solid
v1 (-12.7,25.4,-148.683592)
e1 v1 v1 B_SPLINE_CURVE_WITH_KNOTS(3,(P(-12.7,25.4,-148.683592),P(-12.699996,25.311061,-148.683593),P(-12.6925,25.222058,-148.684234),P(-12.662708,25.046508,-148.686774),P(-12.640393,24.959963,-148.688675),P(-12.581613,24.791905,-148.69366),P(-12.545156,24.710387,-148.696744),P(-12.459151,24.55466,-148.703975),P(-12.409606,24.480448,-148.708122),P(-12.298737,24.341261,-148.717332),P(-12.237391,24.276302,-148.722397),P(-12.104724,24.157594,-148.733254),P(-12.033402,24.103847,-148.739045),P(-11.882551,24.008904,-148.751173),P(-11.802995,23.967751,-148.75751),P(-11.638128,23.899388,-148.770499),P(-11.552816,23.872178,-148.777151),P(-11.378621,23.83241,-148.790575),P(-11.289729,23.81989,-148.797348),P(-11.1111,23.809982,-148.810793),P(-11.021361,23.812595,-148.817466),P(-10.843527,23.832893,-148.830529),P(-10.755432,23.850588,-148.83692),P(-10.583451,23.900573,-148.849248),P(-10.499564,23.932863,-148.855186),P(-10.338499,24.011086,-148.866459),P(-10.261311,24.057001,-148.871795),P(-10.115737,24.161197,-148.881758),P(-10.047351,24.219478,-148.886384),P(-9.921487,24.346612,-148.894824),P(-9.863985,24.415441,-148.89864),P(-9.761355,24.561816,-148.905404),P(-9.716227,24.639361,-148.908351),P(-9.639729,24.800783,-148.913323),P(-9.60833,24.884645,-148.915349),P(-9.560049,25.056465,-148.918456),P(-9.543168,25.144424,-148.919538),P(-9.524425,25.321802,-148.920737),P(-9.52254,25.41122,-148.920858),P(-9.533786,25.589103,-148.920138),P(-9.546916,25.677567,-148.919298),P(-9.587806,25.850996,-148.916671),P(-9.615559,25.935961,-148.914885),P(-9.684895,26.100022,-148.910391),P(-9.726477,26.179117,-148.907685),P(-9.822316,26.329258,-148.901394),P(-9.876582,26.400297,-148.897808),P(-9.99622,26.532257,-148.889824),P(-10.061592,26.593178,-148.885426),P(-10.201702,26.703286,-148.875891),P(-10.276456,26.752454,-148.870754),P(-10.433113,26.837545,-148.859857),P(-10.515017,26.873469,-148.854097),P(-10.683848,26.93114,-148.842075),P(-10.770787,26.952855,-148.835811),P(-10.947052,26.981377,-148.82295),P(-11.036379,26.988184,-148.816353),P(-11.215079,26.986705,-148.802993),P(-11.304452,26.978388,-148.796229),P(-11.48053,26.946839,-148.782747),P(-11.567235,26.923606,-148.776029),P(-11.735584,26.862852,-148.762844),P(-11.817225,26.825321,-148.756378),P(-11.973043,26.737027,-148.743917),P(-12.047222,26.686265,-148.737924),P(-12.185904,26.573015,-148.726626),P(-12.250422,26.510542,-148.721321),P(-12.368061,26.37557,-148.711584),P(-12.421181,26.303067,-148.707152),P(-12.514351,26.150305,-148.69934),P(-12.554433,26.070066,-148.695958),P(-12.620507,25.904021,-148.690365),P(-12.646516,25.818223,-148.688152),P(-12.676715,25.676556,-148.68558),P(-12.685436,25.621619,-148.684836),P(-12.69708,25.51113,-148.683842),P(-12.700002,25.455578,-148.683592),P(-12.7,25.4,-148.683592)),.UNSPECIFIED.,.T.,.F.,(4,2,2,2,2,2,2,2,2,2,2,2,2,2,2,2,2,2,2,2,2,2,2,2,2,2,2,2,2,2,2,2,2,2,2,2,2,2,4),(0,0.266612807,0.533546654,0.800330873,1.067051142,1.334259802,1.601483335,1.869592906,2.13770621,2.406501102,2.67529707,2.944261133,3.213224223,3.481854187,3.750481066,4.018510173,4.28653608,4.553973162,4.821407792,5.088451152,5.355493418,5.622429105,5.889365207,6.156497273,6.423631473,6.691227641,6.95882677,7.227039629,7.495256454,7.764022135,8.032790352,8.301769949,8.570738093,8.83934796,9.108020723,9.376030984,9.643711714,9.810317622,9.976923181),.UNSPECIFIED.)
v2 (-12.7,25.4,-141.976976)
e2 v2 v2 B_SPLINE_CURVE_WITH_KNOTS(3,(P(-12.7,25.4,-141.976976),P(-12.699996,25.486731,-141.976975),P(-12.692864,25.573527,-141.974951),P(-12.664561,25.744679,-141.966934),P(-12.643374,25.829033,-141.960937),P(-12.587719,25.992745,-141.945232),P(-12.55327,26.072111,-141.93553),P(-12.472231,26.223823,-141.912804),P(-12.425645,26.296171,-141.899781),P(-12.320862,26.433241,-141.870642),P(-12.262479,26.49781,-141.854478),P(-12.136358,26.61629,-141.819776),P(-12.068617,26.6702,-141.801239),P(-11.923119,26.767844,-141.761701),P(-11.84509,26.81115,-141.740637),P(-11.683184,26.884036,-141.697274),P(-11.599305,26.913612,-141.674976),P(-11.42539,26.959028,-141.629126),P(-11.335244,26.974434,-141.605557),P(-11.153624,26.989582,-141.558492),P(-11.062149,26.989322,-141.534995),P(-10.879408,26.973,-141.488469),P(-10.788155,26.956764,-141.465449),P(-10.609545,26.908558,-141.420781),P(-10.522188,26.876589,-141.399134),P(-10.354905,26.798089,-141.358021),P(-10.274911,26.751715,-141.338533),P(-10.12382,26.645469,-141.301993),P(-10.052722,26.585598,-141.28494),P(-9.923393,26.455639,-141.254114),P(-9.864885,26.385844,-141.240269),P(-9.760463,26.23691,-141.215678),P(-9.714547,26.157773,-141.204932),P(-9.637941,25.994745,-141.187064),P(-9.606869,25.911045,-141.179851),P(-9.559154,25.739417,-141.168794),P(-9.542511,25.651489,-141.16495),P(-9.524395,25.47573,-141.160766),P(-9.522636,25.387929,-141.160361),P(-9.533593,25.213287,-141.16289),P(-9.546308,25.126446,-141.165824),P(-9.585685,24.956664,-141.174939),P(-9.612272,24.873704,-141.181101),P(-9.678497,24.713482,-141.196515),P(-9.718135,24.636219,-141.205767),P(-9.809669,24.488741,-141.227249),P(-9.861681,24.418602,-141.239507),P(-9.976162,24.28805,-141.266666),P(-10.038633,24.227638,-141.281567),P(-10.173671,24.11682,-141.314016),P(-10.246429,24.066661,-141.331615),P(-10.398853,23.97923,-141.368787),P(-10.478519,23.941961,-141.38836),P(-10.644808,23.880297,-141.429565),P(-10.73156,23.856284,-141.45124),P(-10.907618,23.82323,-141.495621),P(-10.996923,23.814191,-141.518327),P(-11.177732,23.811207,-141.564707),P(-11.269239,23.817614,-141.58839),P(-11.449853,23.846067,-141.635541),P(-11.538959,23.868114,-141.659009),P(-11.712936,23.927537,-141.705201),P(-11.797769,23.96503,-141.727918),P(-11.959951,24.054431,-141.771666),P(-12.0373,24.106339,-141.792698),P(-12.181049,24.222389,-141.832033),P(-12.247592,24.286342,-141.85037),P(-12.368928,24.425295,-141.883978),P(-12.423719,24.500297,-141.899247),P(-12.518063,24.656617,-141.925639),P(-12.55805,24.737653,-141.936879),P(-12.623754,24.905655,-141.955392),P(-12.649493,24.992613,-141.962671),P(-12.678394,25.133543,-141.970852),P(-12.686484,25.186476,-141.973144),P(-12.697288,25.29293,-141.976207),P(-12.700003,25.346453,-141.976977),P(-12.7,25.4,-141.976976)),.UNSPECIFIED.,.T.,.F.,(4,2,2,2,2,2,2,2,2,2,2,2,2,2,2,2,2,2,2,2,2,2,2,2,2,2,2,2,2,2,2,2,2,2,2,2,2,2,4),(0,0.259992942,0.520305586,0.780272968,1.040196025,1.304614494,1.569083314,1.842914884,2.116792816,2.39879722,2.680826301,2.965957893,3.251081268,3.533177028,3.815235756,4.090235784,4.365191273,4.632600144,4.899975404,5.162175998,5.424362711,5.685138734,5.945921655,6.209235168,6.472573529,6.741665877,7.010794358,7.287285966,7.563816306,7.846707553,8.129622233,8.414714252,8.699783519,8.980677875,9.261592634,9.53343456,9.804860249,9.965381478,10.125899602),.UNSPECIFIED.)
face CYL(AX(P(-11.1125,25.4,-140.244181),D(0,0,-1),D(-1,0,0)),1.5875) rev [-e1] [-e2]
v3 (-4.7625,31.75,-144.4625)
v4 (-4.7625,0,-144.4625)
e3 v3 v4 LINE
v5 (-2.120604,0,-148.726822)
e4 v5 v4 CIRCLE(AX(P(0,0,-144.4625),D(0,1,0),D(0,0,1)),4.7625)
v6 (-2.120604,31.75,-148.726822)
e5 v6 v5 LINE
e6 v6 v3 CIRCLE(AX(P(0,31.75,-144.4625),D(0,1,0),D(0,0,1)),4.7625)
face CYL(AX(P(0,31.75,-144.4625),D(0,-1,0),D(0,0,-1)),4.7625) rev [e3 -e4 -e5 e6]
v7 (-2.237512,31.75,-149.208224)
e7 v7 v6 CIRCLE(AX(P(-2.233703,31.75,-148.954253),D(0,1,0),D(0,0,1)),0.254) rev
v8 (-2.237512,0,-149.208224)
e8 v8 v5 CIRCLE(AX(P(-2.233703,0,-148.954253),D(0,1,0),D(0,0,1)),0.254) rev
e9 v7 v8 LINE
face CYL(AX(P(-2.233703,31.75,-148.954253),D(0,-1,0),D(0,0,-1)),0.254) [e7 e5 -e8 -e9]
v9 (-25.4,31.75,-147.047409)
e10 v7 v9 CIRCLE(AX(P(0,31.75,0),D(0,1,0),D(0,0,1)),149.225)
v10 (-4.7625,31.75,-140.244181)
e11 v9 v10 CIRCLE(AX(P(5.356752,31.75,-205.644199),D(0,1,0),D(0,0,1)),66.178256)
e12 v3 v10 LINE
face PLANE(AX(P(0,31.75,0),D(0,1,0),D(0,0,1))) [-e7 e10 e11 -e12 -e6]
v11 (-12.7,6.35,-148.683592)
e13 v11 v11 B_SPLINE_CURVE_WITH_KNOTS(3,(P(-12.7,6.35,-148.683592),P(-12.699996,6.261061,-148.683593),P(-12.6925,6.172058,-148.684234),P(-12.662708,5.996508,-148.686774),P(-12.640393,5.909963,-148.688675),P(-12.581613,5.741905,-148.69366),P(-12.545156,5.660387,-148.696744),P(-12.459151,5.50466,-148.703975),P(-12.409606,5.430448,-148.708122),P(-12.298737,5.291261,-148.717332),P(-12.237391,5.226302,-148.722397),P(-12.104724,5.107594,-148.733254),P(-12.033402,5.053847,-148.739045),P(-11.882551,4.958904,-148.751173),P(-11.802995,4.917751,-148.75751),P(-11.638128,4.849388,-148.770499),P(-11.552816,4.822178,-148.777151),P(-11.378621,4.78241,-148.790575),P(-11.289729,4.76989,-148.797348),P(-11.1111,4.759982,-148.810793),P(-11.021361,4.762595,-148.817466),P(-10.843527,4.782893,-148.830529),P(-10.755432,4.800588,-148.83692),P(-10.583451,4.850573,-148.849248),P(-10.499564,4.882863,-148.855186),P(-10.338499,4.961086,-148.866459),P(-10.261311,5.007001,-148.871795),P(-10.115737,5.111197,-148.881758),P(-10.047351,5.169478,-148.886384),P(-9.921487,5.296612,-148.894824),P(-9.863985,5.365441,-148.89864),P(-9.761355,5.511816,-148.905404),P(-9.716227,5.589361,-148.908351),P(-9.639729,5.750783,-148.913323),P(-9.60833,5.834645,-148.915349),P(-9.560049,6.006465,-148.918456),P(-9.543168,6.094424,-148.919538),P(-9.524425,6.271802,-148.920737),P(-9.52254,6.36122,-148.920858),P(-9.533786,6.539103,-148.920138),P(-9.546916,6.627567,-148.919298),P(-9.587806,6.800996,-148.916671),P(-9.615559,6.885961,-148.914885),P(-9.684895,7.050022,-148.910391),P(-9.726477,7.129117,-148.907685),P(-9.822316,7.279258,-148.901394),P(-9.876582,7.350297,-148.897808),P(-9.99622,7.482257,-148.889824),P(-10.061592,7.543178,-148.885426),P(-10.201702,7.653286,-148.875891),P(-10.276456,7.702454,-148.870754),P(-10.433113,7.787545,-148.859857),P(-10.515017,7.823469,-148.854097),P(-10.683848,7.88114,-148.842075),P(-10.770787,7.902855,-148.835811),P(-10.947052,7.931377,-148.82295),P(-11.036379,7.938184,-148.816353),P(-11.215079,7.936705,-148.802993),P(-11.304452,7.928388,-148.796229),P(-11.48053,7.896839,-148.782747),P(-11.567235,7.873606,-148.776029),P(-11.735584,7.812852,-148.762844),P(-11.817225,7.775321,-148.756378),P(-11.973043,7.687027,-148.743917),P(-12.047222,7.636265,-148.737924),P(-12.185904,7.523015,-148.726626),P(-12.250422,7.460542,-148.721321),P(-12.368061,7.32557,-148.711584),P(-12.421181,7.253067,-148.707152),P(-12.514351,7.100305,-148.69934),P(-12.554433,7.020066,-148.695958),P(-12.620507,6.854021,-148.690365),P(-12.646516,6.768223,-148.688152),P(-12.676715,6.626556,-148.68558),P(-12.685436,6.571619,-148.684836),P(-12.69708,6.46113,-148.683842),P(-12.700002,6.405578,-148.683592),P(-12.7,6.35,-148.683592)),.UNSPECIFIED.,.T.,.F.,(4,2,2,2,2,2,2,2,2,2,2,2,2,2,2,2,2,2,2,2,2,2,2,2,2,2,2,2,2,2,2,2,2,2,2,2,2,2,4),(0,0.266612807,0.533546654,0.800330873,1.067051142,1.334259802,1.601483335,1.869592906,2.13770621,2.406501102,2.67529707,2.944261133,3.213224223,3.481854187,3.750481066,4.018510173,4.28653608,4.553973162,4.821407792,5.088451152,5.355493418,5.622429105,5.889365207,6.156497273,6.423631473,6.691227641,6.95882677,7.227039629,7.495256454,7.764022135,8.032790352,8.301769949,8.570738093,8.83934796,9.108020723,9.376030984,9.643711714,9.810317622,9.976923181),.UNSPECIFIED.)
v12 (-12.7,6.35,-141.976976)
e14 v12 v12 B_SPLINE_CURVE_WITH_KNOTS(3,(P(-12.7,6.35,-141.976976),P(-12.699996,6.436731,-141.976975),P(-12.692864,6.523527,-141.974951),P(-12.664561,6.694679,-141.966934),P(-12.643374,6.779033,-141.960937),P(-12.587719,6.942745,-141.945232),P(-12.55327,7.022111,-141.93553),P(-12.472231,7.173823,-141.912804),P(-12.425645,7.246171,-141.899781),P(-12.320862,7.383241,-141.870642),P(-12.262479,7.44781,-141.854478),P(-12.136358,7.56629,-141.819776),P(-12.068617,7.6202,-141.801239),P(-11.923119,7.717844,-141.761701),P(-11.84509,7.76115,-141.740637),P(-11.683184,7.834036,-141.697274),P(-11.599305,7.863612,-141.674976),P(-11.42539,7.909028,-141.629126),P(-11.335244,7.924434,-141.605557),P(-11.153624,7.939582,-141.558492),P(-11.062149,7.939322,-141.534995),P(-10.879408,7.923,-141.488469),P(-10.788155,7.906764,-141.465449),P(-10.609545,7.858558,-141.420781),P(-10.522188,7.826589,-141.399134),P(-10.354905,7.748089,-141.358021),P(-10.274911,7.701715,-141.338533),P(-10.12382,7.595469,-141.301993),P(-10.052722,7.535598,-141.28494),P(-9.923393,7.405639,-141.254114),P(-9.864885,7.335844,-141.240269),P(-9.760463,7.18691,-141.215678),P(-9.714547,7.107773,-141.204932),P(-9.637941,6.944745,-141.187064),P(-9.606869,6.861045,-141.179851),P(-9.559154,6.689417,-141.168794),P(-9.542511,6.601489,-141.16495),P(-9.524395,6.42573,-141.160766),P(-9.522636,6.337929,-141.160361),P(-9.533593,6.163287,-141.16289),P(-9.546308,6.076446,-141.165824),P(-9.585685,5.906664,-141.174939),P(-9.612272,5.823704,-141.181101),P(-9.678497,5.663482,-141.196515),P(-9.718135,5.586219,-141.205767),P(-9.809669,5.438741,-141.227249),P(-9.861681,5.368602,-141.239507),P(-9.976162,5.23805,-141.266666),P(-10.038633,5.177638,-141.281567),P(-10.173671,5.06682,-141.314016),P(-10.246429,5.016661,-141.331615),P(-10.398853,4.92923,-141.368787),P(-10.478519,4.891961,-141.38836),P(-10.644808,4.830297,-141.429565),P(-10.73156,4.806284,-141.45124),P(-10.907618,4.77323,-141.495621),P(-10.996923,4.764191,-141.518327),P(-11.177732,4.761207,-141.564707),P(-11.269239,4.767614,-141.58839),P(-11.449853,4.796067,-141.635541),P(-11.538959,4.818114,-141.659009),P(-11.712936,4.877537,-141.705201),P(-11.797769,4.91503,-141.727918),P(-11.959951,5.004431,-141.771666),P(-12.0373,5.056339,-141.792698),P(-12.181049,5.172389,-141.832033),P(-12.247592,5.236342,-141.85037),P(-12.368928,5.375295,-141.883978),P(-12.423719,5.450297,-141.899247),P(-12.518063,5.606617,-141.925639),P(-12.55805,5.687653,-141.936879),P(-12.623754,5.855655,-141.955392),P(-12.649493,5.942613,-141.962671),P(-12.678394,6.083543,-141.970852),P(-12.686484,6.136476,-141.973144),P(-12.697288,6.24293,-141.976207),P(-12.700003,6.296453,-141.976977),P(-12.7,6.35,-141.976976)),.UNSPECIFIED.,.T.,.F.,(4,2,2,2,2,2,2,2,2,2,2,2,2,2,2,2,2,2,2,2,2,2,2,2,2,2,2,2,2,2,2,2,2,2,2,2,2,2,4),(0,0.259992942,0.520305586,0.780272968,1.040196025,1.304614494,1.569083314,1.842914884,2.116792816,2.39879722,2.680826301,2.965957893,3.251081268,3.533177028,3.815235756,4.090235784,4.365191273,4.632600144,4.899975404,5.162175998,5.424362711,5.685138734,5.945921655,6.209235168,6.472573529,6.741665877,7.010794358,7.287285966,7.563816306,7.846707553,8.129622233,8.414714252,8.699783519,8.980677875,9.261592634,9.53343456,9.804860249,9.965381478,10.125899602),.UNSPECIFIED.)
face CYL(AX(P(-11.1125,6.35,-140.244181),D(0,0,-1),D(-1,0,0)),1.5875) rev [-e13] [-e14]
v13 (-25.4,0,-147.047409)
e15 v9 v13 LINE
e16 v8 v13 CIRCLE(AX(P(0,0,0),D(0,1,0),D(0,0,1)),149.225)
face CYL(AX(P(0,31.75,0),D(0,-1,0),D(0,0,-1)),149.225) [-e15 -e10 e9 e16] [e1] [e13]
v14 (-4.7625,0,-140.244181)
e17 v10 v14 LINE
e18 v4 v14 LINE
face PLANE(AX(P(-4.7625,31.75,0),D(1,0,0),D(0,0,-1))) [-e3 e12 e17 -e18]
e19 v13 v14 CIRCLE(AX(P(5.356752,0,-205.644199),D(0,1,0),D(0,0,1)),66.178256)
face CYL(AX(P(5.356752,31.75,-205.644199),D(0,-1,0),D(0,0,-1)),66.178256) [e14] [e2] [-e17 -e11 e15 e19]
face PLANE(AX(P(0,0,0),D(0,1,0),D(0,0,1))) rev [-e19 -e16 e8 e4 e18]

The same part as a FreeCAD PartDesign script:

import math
import FreeCAD as App
import Part
import Sketcher
Q = App.Units.Quantity

doc = App.newDocument("Part")
params = doc.addObject("Spreadsheet::Sheet", "Params")
for row, (alias, value) in enumerate([
    ("sketch1_radius", "0.01 in"),
    ("sketch1_radius2", "0.1875 in"),
    ("sketch1_radius3", "5.875 in"),
    ("pad1_length", "1.25 in"),
    ("sketch2_diameter", "0.125 in"),
], start=1):
    params.set(f"A{row}", alias)
    params.set(f"B{row}", "=" + value)
    params.setAlias(f"B{row}", alias)

body = doc.addObject("PartDesign::Body", "Body")

# Sketch on XZ plane
sketch1 = body.newObject("Sketcher::SketchObject", "Sketch")
sketch1.AttachmentSupport = (doc.getObject("XZ_Plane"), [""])
sketch1.MapMode = "FlatFace"
sketch1.addGeometry([
    Part.LineSegment(App.Vector(-4.76, -140.24, 0), App.Vector(-4.76, -144.46, 0)),  # 0
    Part.ArcOfCircle(Part.Circle(App.Vector(0, -144.46, 0), App.Vector(0, 0, 1), 4.76), math.radians(180), math.radians(244)),  # 1
    Part.ArcOfCircle(Part.Circle(App.Vector(-2.23, -148.95, 0), App.Vector(0, 0, 1), 0.25), math.radians(-91), math.radians(64)),  # 2
    Part.ArcOfCircle(Part.Circle(App.Vector(0, 0, 0), App.Vector(0, 0, 1), 149.22), math.radians(-99.8), math.radians(-90.86)),  # 3
    Part.ArcOfCircle(Part.Circle(App.Vector(5.36, -205.64, 0), App.Vector(0, 0, 1), 66.18), math.radians(98.8), math.radians(117.69)),  # 4
], False)
sketch1.addConstraint([
    Sketcher.Constraint("Tangent", 0, 2, 1, 1),
    Sketcher.Constraint("Tangent", 1, 2, 2, 2),
    Sketcher.Constraint("Tangent", 2, 1, 3, 2),
    Sketcher.Constraint("Coincident", 3, 1, 4, 2),
    Sketcher.Constraint("Coincident", 4, 1, 0, 1),
    Sketcher.Constraint("Vertical", 0),
    Sketcher.Constraint("Coincident", 3, 3, -1, 1),
    Sketcher.Constraint("PointOnObject", 1, 3, -2),
    Sketcher.Constraint("Radius", 2, Q("0.01 in")),
    Sketcher.Constraint("DistanceX", 3, 1, -1, 1, Q("1 in")),
    Sketcher.Constraint("Radius", 1, Q("0.1875 in")),
    Sketcher.Constraint("Radius", 3, Q("5.875 in")),
    Sketcher.Constraint("DistanceY", 1, 3, -1, 1, Q("5.6875 in")),
    Sketcher.Constraint("Radius", 4, Q("66.178256 mm")),
    Sketcher.Constraint("DistanceY", 0, 2, 0, 1, Q("4.218319 mm")),
])
sketch1.setExpression("Constraints[8]", "Params.sketch1_radius")
sketch1.setExpression("Constraints[10]", "Params.sketch1_radius2")
sketch1.setExpression("Constraints[11]", "Params.sketch1_radius3")
pad1 = body.newObject("PartDesign::Pad", "Pad")
pad1.Profile = sketch1
pad1.setExpression("Length", "Params.pad1_length")
pad1.Reversed = True

# Sketch on XY plane
sketch2 = body.newObject("Sketcher::SketchObject", "Sketch001")
sketch2.AttachmentSupport = (doc.getObject("XY_Plane"), [""])
sketch2.MapMode = "FlatFace"
sketch2.AttachmentOffset = App.Placement(App.Vector(0, 0, -5.875 * 25.4), App.Rotation())
sketch2.addGeometry([
    Part.Circle(App.Vector(-11.1, 25.4, 0), App.Vector(0, 0, 1), 1.6),
    Part.Circle(App.Vector(-11.1, 6.3, 0), App.Vector(0, 0, 1), 1.6),
], False)
sketch2.addConstraint([
    Sketcher.Constraint("Equal", 0, 1),
    Sketcher.Constraint("Vertical", 0, 3, 1, 3),
    Sketcher.Constraint("Diameter", 0, Q("0.125 in")),
    Sketcher.Constraint("DistanceY", -1, 1, 0, 3, Q("1 in")),
    Sketcher.Constraint("DistanceY", -1, 1, 1, 3, Q("0.25 in")),
    Sketcher.Constraint("DistanceX", 0, 3, -1, 1, Q("0.4375 in")),
])
sketch2.setExpression("Constraints[2]", "Params.sketch2_diameter")
pocket1 = body.newObject("PartDesign::Pocket", "Pocket")
pocket1.Profile = sketch2
pocket1.Type = "ThroughAll"
pocket1.Reversed = True

doc.recompute()
